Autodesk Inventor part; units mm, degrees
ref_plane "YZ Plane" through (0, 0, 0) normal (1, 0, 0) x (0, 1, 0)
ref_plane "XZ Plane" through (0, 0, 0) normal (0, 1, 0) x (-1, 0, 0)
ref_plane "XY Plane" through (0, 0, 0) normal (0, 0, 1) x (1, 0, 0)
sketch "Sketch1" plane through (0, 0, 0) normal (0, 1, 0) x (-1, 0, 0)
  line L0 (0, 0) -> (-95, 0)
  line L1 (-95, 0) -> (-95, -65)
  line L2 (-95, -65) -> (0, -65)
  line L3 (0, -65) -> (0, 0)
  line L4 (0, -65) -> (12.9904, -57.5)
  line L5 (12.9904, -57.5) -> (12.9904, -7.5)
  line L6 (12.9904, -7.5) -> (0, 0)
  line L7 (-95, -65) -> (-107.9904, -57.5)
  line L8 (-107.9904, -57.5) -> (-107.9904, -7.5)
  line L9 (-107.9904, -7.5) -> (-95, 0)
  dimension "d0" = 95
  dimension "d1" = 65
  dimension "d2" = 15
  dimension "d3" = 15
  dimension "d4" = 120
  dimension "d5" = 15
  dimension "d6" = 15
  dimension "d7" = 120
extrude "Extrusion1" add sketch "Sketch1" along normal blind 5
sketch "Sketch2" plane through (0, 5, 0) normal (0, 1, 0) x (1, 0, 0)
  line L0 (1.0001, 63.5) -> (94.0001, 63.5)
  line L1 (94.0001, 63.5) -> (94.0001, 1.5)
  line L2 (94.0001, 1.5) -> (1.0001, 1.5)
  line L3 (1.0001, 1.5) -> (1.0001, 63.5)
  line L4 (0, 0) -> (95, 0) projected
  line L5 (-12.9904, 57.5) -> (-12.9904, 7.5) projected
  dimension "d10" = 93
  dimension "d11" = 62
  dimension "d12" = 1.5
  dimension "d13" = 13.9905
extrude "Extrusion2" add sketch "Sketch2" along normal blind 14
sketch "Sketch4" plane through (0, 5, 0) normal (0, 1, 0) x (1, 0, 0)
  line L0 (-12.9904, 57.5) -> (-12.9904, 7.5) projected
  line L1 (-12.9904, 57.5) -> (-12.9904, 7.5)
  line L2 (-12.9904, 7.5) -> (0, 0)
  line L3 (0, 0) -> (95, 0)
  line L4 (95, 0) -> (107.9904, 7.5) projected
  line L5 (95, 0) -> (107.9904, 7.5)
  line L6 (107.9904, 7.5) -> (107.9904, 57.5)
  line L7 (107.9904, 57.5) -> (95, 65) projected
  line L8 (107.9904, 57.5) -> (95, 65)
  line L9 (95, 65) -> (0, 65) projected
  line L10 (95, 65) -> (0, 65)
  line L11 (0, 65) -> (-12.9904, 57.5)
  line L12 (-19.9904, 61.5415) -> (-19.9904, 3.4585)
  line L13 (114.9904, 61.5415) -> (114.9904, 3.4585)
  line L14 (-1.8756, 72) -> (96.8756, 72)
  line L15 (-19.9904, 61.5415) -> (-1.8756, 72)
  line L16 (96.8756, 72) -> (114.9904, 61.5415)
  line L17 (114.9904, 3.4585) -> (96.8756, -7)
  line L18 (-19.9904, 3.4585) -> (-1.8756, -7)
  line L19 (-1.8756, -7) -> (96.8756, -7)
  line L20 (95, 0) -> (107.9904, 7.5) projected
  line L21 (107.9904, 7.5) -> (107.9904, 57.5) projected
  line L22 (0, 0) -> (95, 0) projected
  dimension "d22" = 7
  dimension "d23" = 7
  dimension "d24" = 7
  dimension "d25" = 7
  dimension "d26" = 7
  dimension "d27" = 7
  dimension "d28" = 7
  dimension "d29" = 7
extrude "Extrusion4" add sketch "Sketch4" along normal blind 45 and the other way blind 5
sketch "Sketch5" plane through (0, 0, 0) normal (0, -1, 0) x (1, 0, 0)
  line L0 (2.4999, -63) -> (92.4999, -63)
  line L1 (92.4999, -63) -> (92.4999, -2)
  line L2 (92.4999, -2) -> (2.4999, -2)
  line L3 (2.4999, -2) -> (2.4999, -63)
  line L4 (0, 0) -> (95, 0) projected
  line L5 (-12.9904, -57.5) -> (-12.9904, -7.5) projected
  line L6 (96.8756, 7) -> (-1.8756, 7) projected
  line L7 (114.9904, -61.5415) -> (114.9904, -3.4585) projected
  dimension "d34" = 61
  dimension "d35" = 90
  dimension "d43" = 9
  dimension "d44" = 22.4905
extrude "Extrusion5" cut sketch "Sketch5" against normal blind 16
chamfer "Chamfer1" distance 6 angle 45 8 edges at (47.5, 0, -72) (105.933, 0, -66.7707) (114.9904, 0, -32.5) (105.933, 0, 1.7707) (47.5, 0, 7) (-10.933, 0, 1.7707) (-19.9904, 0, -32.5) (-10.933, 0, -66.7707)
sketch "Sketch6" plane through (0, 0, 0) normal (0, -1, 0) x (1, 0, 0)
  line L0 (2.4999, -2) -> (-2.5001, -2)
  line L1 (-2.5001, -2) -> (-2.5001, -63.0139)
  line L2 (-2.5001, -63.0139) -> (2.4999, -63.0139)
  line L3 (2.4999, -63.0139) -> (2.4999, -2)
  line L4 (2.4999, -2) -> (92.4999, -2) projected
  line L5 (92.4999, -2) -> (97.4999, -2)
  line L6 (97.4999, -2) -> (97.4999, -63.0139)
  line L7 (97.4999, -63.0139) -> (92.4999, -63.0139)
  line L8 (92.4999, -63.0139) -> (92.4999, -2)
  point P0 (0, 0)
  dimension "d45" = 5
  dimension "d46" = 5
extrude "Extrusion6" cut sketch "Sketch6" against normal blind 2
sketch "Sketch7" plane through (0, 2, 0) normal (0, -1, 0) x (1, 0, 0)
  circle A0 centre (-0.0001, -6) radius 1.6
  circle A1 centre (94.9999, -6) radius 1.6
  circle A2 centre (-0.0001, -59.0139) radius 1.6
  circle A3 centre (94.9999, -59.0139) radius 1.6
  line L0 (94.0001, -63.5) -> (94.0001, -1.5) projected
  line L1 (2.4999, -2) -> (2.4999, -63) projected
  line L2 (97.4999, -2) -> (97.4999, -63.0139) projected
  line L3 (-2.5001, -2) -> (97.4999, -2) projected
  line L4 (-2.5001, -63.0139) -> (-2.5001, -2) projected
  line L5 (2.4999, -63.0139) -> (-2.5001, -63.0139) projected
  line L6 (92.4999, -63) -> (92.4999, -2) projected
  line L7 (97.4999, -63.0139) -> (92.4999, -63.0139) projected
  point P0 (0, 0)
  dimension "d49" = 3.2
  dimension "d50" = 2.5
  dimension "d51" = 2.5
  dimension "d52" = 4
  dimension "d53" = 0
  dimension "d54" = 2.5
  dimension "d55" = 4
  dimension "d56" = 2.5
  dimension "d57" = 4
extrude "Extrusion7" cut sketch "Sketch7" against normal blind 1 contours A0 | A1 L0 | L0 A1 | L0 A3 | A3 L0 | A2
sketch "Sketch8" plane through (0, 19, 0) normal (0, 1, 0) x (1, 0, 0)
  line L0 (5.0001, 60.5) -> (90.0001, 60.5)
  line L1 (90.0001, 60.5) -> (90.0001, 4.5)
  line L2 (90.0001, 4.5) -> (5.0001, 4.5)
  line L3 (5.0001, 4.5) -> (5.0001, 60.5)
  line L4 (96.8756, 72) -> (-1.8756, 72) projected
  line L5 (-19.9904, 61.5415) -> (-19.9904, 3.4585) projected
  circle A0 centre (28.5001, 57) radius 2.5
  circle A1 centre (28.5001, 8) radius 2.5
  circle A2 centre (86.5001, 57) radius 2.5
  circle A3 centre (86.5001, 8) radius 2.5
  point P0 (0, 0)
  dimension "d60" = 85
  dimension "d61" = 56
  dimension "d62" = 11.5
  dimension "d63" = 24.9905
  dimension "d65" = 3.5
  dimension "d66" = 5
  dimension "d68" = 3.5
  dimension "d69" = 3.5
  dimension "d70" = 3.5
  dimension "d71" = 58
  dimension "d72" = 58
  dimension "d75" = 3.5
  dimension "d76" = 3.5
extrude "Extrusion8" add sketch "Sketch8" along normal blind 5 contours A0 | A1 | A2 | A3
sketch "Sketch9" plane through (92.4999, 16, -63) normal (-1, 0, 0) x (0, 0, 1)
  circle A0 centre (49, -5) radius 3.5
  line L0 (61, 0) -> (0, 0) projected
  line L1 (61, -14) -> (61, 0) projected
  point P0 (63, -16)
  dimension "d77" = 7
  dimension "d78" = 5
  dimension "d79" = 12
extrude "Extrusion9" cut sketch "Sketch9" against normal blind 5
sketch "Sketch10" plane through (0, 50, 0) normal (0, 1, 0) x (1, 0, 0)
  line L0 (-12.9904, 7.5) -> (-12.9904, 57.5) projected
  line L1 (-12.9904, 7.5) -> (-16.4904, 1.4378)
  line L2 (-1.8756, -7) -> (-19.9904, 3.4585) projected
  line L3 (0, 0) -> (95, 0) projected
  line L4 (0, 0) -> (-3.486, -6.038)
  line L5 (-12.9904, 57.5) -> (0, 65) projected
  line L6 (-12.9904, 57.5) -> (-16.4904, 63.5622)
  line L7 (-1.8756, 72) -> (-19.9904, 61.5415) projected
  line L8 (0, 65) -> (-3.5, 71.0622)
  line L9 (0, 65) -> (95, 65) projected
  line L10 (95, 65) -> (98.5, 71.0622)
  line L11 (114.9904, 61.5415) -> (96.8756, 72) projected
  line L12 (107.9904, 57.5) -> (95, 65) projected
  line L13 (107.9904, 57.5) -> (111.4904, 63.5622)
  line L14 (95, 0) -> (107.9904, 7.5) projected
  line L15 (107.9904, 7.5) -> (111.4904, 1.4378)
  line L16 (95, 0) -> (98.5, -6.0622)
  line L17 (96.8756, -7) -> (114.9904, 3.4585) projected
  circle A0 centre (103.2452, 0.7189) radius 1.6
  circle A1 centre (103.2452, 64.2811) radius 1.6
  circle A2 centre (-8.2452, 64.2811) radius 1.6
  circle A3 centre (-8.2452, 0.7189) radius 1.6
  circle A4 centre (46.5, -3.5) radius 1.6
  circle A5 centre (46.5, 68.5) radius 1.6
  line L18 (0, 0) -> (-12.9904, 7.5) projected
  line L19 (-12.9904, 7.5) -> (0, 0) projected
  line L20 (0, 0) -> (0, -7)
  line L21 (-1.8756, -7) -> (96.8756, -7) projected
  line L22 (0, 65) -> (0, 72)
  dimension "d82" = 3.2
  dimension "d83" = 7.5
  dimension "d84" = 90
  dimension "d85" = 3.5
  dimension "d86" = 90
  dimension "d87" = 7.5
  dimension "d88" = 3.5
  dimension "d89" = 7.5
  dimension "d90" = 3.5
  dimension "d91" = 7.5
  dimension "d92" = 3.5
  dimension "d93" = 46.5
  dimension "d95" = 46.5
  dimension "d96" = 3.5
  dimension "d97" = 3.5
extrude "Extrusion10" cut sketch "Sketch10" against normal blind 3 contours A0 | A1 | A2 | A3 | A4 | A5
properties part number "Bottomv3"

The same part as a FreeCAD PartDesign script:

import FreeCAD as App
import Part
import Sketcher
Q = App.Units.Quantity


def edges_at(feature, points):
    """Names of the edges that pass closest to the given points."""
    edges = feature.Shape.Edges
    near = lambda p: min(range(len(edges)), key=lambda i: edges[i].distToShape(Part.Vertex(*p))[0])
    return sorted({f"Edge{near(p) + 1}" for p in points})


def add_polygon(sketch, points):
    """Adds a closed chain of lines whose ends are joined by coincident constraints."""
    first, n = sketch.GeometryCount, len(points)
    for a, b in zip(points, points[1:] + points[:1]):
        sketch.addGeometry(Part.LineSegment(App.Vector(*a, 0), App.Vector(*b, 0)), False)
    for i in range(n):
        sketch.addConstraint(Sketcher.Constraint("Coincident", first + i, 2, first + (i + 1) % n, 1))

doc = App.newDocument("Part")
body = doc.addObject("PartDesign::Body", "Body")

# Sketch on XZ plane
sketch1 = body.newObject("Sketcher::SketchObject", "Sketch")
sketch1.AttachmentSupport = (doc.getObject("XZ_Plane"), [""])
sketch1.MapMode = "FlatFace"
add_polygon(sketch1, [(95, -65), (0, -65), (-13, -58), (-13, -8), (0, 0), (95, 0), (108, -8), (108, -58)])  # lines 0-7
sketch1.addConstraint([
    Sketcher.Constraint("Horizontal", 0),
    Sketcher.Constraint("Vertical", 2),
    Sketcher.Constraint("Horizontal", 4),
    Sketcher.Constraint("Vertical", 6),
    Sketcher.Constraint("Coincident", 3, 2, -1, 1),
    Sketcher.Constraint("PointOnObject", 0, 2, -2),
    Sketcher.Constraint("Parallel", 1, 5),
    Sketcher.Constraint("Parallel", 3, 7),
    Sketcher.Constraint("Horizontal", 2, 2, 5, 2),
    Sketcher.Constraint("Horizontal", 1, 2, 6, 2),
    Sketcher.Constraint("Vertical", 4, 2, 7, 2),
    Sketcher.Constraint("DistanceX", 0, 2, 0, 1, Q("95 mm")),
    Sketcher.Constraint("Distance", 1, Q("15 mm")),
    Sketcher.Constraint("DistanceY", 0, 2, -1, 1, Q("65 mm")),
    Sketcher.Constraint("DistanceY", 2, 1, 2, 2, Q("50 mm")),
])
pad1 = body.newObject("PartDesign::Pad", "Pad")
pad1.Profile = sketch1
pad1.Length = 5
pad1.Reversed = True

# Sketch on XZ plane
sketch2 = body.newObject("Sketcher::SketchObject", "Sketch001")
sketch2.AttachmentSupport = (doc.getObject("XZ_Plane"), [""])
sketch2.MapMode = "FlatFace"
sketch2.AttachmentOffset = App.Placement(App.Vector(0, 0, -5), App.Rotation())
add_polygon(sketch2, [(94, -64), (1, -64), (1, -2), (94, -2)])  # lines 0-3
sketch2.addConstraint([
    Sketcher.Constraint("Horizontal", 0),
    Sketcher.Constraint("Vertical", 1),
    Sketcher.Constraint("Horizontal", 2),
    Sketcher.Constraint("Vertical", 3),
    Sketcher.Constraint("DistanceX", 0, 2, 0, 1, Q("93 mm")),
    Sketcher.Constraint("DistanceY", 1, 1, 1, 2, Q("62 mm")),
    Sketcher.Constraint("DistanceY", 1, 2, -1, 1, Q("1.5 mm")),
    Sketcher.Constraint("DistanceX", -1, 1, 0, 2, Q("1 mm")),
])
pad2 = body.newObject("PartDesign::Pad", "Pad001")
pad2.Profile = sketch2
pad2.Length = 14
pad2.Reversed = True

# Sketch on XZ plane
sketch3 = body.newObject("Sketcher::SketchObject", "Sketch002")
sketch3.AttachmentSupport = (doc.getObject("XZ_Plane"), [""])
sketch3.MapMode = "FlatFace"
sketch3.AttachmentOffset = App.Placement(App.Vector(0, 0, -5), App.Rotation())
add_polygon(sketch3, [(-2, -72), (-20, -62), (-20, -3), (-2, 7), (97, 7), (115, -3), (115, -62), (97, -72)])  # lines 0-7
add_polygon(sketch3, [(-13, -8), (-13, -58), (0, -65), (95, -65), (108, -58), (108, -8), (95, 0), (0, 0)])  # lines 8-15
sketch3.addConstraint([
    Sketcher.Constraint("Vertical", 1),
    Sketcher.Constraint("Horizontal", 3),
    Sketcher.Constraint("Vertical", 5),
    Sketcher.Constraint("Horizontal", 7),
    Sketcher.Constraint("Vertical", 8),
    Sketcher.Constraint("Horizontal", 10),
    Sketcher.Constraint("Vertical", 12),
    Sketcher.Constraint("Horizontal", 14),
    Sketcher.Constraint("Coincident", 14, 2, -1, 1),
    Sketcher.Constraint("PointOnObject", 9, 2, -2),
    Sketcher.Constraint("Parallel", 0, 4),
    Sketcher.Constraint("Parallel", 2, 6),
    Sketcher.Constraint("Parallel", 4, 9),
    Sketcher.Constraint("Parallel", 6, 11),
    Sketcher.Constraint("Parallel", 9, 13),
    Sketcher.Constraint("Parallel", 11, 15),
    Sketcher.Constraint("Horizontal", 1, 2, 4, 2),
    Sketcher.Constraint("Horizontal", 0, 2, 5, 2),
    Sketcher.Constraint("Horizontal", 8, 2, 11, 2),
    Sketcher.Constraint("Horizontal", 12, 2, 15, 2),
    Sketcher.Constraint("Vertical", 3, 2, 6, 2),
    Sketcher.Constraint("Vertical", 2, 2, 7, 2),
    Sketcher.Constraint("DistanceY", -1, 1, 2, 2, Q("7 mm")),
    Sketcher.Constraint("DistanceX", 0, 2, 8, 2, Q("7 mm")),
    Sketcher.Constraint("DistanceY", 7, 2, 9, 2, Q("7 mm")),
    Sketcher.Constraint("DistanceX", 11, 2, 5, 2, Q("7 mm")),
    Sketcher.Constraint("DistanceX", 10, 1, 10, 2, Q("95 mm")),
    Sketcher.Constraint("DistanceY", 8, 2, 8, 1, Q("50 mm")),
    Sketcher.Constraint("Angle", 0, Q("150.0002 deg")),
    Sketcher.Constraint("Distance", 9, Q("15 mm")),
    Sketcher.Constraint("DistanceY", 1, 1, 1, 2, Q("58.083 mm")),
])
pad3 = body.newObject("PartDesign::Pad", "Pad002")
pad3.Profile = sketch3
pad3.Type = "TwoLengths"
pad3.Length = 45
pad3.Length2 = 5
pad3.Reversed = True

# Sketch on XZ plane
sketch4 = body.newObject("Sketcher::SketchObject", "Sketch003")
sketch4.AttachmentSupport = (doc.getObject("XZ_Plane"), [""])
sketch4.MapMode = "FlatFace"
add_polygon(sketch4, [(2, -2), (2, -63), (92, -63), (92, -2)])  # lines 0-3
sketch4.addConstraint([
    Sketcher.Constraint("Vertical", 0),
    Sketcher.Constraint("Horizontal", 1),
    Sketcher.Constraint("Vertical", 2),
    Sketcher.Constraint("Horizontal", 3),
    Sketcher.Constraint("DistanceX", 1, 1, 1, 2, Q("90 mm")),
    Sketcher.Constraint("DistanceY", 0, 2, 0, 1, Q("61 mm")),
    Sketcher.Constraint("DistanceY", 0, 2, -1, 1, Q("63 mm")),
    Sketcher.Constraint("DistanceX", -1, 1, 0, 2, Q("2.5 mm")),
])
pocket1 = body.newObject("PartDesign::Pocket", "Pocket")
pocket1.Profile = sketch4
pocket1.Length = 16
doc.recompute()

chamfer = body.newObject("PartDesign::Chamfer", "Chamfer")
chamfer.Base = (pocket1, edges_at(pocket1, [
    (47.5, 0, -72),
    (105.933, 0, -66.771),
    (114.99, 0, -32.5),
    (105.933, 0, 1.771),
    (47.5, 0, 7),
    (-10.933, 0, 1.771),
    (-19.99, 0, -32.5),
    (-10.933, 0, -66.771),
]))
chamfer.Size = 6

# Sketch on XZ plane
sketch5 = body.newObject("Sketcher::SketchObject", "Sketch004")
sketch5.AttachmentSupport = (doc.getObject("XZ_Plane"), [""])
sketch5.MapMode = "FlatFace"
add_polygon(sketch5, [(2, -63), (2, -2), (-3, -2), (-3, -63)])  # lines 0-3
add_polygon(sketch5, [(97, -2), (92, -2), (92, -63), (97, -63)])  # lines 4-7
sketch5.addConstraint([
    Sketcher.Constraint("Vertical", 0),
    Sketcher.Constraint("Horizontal", 1),
    Sketcher.Constraint("Vertical", 2),
    Sketcher.Constraint("Horizontal", 3),
    Sketcher.Constraint("Horizontal", 4),
    Sketcher.Constraint("Vertical", 5),
    Sketcher.Constraint("Horizontal", 6),
    Sketcher.Constraint("Vertical", 7),
    Sketcher.Constraint("Horizontal", 1, 2, 4, 2),
    Sketcher.Constraint("Horizontal", 3, 2, 5, 2),
    Sketcher.Constraint("Equal", 3, 4),
    Sketcher.Constraint("DistanceX", 1, 2, 1, 1, Q("5 mm")),
    Sketcher.Constraint("DistanceY", 0, 2, -1, 1, Q("2 mm")),
    Sketcher.Constraint("DistanceX", 0, 2, 4, 2, Q("90 mm")),
    Sketcher.Constraint("DistanceX", -1, 1, 0, 2, Q("2.5 mm")),
    Sketcher.Constraint("DistanceY", 0, 1, 0, 2, Q("61.014 mm")),
])
pocket2 = body.newObject("PartDesign::Pocket", "Pocket001")
pocket2.Profile = sketch5
pocket2.Length = 2

# Sketch on XZ plane
sketch6 = body.newObject("Sketcher::SketchObject", "Sketch005")
sketch6.AttachmentSupport = (doc.getObject("XZ_Plane"), [""])
sketch6.MapMode = "FlatFace"
sketch6.AttachmentOffset = App.Placement(App.Vector(0, 0, -2), App.Rotation())
sketch6.addGeometry([
    Part.Circle(App.Vector(0, -6, 0), App.Vector(0, 0, 1), 1.6),
    Part.Circle(App.Vector(95, -6, 0), App.Vector(0, 0, 1), 1.6),
    Part.Circle(App.Vector(95, -59, 0), App.Vector(0, 0, 1), 1.6),
    Part.Circle(App.Vector(0, -59, 0), App.Vector(0, 0, 1), 1.6),
], False)
sketch6.addConstraint([
    Sketcher.Constraint("Equal", 0, 1),
    Sketcher.Constraint("Equal", 1, 2),
    Sketcher.Constraint("Equal", 2, 3),
    Sketcher.Constraint("PointOnObject", 0, 3, -2),
    Sketcher.Constraint("PointOnObject", 3, 3, -2),
    Sketcher.Constraint("Horizontal", 0, 3, 1, 3),
    Sketcher.Constraint("Horizontal", 2, 3, 3, 3),
    Sketcher.Constraint("Vertical", 1, 3, 2, 3),
    Sketcher.Constraint("Diameter", 0, Q("3.2 mm")),
    Sketcher.Constraint("DistanceY", 0, 3, -1, 1, Q("6 mm")),
    Sketcher.Constraint("DistanceX", -1, 1, 1, 3, Q("95 mm")),
    Sketcher.Constraint("DistanceY", 2, 3, -1, 1, Q("59.014 mm")),
])
pocket3 = body.newObject("PartDesign::Pocket", "Pocket002")
pocket3.Profile = sketch6
pocket3.Length = 1

# Sketch on XZ plane
sketch7 = body.newObject("Sketcher::SketchObject", "Sketch006")
sketch7.AttachmentSupport = (doc.getObject("XZ_Plane"), [""])
sketch7.MapMode = "FlatFace"
sketch7.AttachmentOffset = App.Placement(App.Vector(0, 0, -19), App.Rotation())
sketch7.addGeometry([
    Part.Circle(App.Vector(28.5, -57, 0), App.Vector(0, 0, 1), 2.5),
    Part.Circle(App.Vector(28.5, -8, 0), App.Vector(0, 0, 1), 2.5),
    Part.Circle(App.Vector(86.5, -57, 0), App.Vector(0, 0, 1), 2.5),
    Part.Circle(App.Vector(86.5, -8, 0), App.Vector(0, 0, 1), 2.5),
], False)
sketch7.addConstraint([
    Sketcher.Constraint("Equal", 0, 1),
    Sketcher.Constraint("Equal", 1, 2),
    Sketcher.Constraint("Equal", 2, 3),
    Sketcher.Constraint("Horizontal", 0, 3, 2, 3),
    Sketcher.Constraint("Horizontal", 1, 3, 3, 3),
    Sketcher.Constraint("Vertical", 0, 3, 1, 3),
    Sketcher.Constraint("Vertical", 2, 3, 3, 3),
    Sketcher.Constraint("Diameter", 0, Q("5 mm")),
    Sketcher.Constraint("DistanceX", 0, 3, 2, 3, Q("58 mm")),
    Sketcher.Constraint("DistanceY", 0, 3, -1, 1, Q("57 mm")),
    Sketcher.Constraint("DistanceY", 1, 3, -1, 1, Q("8 mm")),
    Sketcher.Constraint("DistanceX", -1, 1, 0, 3, Q("28.5 mm")),
])
pad4 = body.newObject("PartDesign::Pad", "Pad003")
pad4.Profile = sketch7
pad4.Length = 5
pad4.Reversed = True

# Sketch on YZ plane
sketch8 = body.newObject("Sketcher::SketchObject", "Sketch007")
sketch8.AttachmentSupport = (doc.getObject("YZ_Plane"), [""])
sketch8.MapMode = "FlatFace"
sketch8.AttachmentOffset = App.Placement(App.Vector(0, 0, 92.4999), App.Rotation())
sketch8.addGeometry(Part.Circle(App.Vector(11, -14, 0), App.Vector(0, 0, 1), 3.5), False)
sketch8.addConstraint([
    Sketcher.Constraint("Diameter", 0, Q("7 mm")),
    Sketcher.Constraint("DistanceX", -1, 1, 0, 3, Q("11 mm")),
    Sketcher.Constraint("DistanceY", 0, 3, -1, 1, Q("14 mm")),
])
pocket4 = body.newObject("PartDesign::Pocket", "Pocket003")
pocket4.Profile = sketch8
pocket4.Length = 5
pocket4.Reversed = True

# Sketch on XZ plane
sketch9 = body.newObject("Sketcher::SketchObject", "Sketch008")
sketch9.AttachmentSupport = (doc.getObject("XZ_Plane"), [""])
sketch9.MapMode = "FlatFace"
sketch9.AttachmentOffset = App.Placement(App.Vector(0, 0, -50), App.Rotation())
sketch9.addGeometry([
    Part.Circle(App.Vector(103.2, -0.7, 0), App.Vector(0, 0, 1), 1.6),  # 0
    Part.Circle(App.Vector(103.2, -64.3, 0), App.Vector(0, 0, 1), 1.6),  # 1
    Part.Circle(App.Vector(-8.2, -64.3, 0), App.Vector(0, 0, 1), 1.6),  # 2
    Part.Circle(App.Vector(-8.2, -0.7, 0), App.Vector(0, 0, 1), 1.6),  # 3
    Part.Circle(App.Vector(46.5, 3.5, 0), App.Vector(0, 0, 1), 1.6),  # 4
    Part.Circle(App.Vector(46.5, -68.5, 0), App.Vector(0, 0, 1), 1.6),  # 5
], False)
sketch9.addConstraint([
    Sketcher.Constraint("Equal", 0, 1),
    Sketcher.Constraint("Equal", 1, 2),
    Sketcher.Constraint("Equal", 2, 3),
    Sketcher.Constraint("Equal", 3, 4),
    Sketcher.Constraint("Equal", 4, 5),
    Sketcher.Constraint("Horizontal", 1, 3, 2, 3),
    Sketcher.Constraint("Horizontal", 0, 3, 3, 3),
    Sketcher.Constraint("Vertical", 0, 3, 1, 3),
    Sketcher.Constraint("Vertical", 2, 3, 3, 3),
    Sketcher.Constraint("Vertical", 4, 3, 5, 3),
    Sketcher.Constraint("Diameter", 0, Q("3.2 mm")),
    Sketcher.Constraint("DistanceX", -1, 1, 4, 3, Q("46.5 mm")),
    Sketcher.Constraint("DistanceY", -1, 1, 4, 3, Q("3.5 mm")),
    Sketcher.Constraint("DistanceY", 5, 3, 4, 3, Q("72 mm")),
    Sketcher.Constraint("DistanceY", 0, 3, -1, 1, Q("0.719 mm")),
    Sketcher.Constraint("DistanceY", 1, 3, -1, 1, Q("64.281 mm")),
    Sketcher.Constraint("DistanceX", -1, 1, 0, 3, Q("103.2452 mm")),
    Sketcher.Constraint("DistanceX", 2, 3, -1, 1, Q("8.2452 mm")),
])
pocket5 = body.newObject("PartDesign::Pocket", "Pocket004")
pocket5.Profile = sketch9
pocket5.Length = 3
pocket5.Reversed = True

doc.recompute()
